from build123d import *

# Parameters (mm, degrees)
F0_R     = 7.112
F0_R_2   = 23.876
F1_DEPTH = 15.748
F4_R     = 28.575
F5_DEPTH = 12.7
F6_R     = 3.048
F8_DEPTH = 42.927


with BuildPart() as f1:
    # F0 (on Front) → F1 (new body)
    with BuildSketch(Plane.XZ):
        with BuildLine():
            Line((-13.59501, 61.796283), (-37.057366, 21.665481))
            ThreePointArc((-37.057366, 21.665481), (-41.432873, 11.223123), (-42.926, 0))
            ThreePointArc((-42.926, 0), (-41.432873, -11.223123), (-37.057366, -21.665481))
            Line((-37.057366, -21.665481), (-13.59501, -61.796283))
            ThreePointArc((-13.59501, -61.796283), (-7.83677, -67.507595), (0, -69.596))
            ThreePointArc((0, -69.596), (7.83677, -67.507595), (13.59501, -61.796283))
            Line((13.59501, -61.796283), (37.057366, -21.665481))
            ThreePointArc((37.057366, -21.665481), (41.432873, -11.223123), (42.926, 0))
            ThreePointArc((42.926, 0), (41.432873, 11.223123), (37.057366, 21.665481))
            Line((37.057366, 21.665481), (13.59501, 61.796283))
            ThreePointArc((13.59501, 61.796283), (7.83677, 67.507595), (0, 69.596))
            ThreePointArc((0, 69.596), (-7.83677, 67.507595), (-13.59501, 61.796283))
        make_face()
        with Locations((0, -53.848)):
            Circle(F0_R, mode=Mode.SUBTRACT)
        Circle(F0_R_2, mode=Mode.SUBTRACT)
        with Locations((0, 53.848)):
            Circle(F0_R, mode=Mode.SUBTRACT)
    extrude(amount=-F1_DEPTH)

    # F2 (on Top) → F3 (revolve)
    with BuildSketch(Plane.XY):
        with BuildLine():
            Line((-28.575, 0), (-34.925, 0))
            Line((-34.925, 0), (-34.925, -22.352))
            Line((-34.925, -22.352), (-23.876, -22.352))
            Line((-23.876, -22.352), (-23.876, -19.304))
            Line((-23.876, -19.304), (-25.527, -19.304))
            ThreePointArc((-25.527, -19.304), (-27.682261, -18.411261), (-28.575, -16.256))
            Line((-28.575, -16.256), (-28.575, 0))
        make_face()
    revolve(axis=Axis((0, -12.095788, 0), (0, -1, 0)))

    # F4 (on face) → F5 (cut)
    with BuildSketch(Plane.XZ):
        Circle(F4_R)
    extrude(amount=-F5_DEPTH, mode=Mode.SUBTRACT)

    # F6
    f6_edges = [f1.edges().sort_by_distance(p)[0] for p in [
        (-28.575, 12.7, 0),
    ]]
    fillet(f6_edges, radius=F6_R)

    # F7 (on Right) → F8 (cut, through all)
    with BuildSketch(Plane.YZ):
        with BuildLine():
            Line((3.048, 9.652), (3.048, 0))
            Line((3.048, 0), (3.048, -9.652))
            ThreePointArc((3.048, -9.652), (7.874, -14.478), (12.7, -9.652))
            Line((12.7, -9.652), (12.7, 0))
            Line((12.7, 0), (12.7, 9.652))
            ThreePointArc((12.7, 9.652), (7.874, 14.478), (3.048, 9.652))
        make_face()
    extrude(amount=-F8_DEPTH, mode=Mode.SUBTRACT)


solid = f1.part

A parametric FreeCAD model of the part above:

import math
import FreeCAD as App
import Part
import Sketcher
Q = App.Units.Quantity


def edges_at(feature, points):
    """Names of the edges that pass closest to the given points."""
    edges = feature.Shape.Edges
    near = lambda p: min(range(len(edges)), key=lambda i: edges[i].distToShape(Part.Vertex(*p))[0])
    return sorted({f"Edge{near(p) + 1}" for p in points})

doc = App.newDocument("Part")
body = doc.addObject("PartDesign::Body", "Body")

sketch1 = body.newObject("Sketcher::SketchObject", "Sketch")
sketch1.AttachmentSupport = (doc.getObject("XZ_Plane"), [""])
sketch1.MapMode = "FlatFace"
sketch1.addGeometry(Part.LineSegment(App.Vector(-14, 62, 0), App.Vector(-37, 22, 0)), False)
sketch1.addGeometry(Part.ArcOfCircle(Part.Circle(App.Vector(0, 0, 0), App.Vector(0, 0, 1), 43), math.radians(150), math.radians(180)), False)
sketch1.addGeometry(Part.ArcOfCircle(Part.Circle(App.Vector(0, 0, 0), App.Vector(0, 0, 1), 43), math.radians(-180), math.radians(-150)), False)
sketch1.addGeometry(Part.LineSegment(App.Vector(-37, -22, 0), App.Vector(-14, -62, 0)), False)
sketch1.addGeometry(Part.ArcOfCircle(Part.Circle(App.Vector(0, -54, 0), App.Vector(0, 0, 1), 16), math.radians(-150), math.radians(-90)), False)
sketch1.addGeometry(Part.ArcOfCircle(Part.Circle(App.Vector(0, -54, 0), App.Vector(0, 0, 1), 16), math.radians(-90), math.radians(-30)), False)
sketch1.addGeometry(Part.LineSegment(App.Vector(14, -62, 0), App.Vector(37, -22, 0)), False)
sketch1.addGeometry(Part.ArcOfCircle(Part.Circle(App.Vector(0, 0, 0), App.Vector(0, 0, 1), 43), math.radians(-30), math.radians(0)), False)
sketch1.addGeometry(Part.ArcOfCircle(Part.Circle(App.Vector(0, 0, 0), App.Vector(0, 0, 1), 43), math.radians(0), math.radians(30)), False)
sketch1.addGeometry(Part.LineSegment(App.Vector(37, 22, 0), App.Vector(14, 62, 0)), False)
sketch1.addGeometry(Part.ArcOfCircle(Part.Circle(App.Vector(0, 54, 0), App.Vector(0, 0, 1), 16), math.radians(30), math.radians(90)), False)
sketch1.addGeometry(Part.ArcOfCircle(Part.Circle(App.Vector(0, 54, 0), App.Vector(0, 0, 1), 16), math.radians(90), math.radians(150)), False)
sketch1.addGeometry(Part.Circle(App.Vector(0, -54, 0), App.Vector(0, 0, 1), 7), False)
sketch1.addGeometry(Part.Circle(App.Vector(0, 0, 0), App.Vector(0, 0, 1), 24), False)
sketch1.addGeometry(Part.Circle(App.Vector(0, 54, 0), App.Vector(0, 0, 1), 7), False)
sketch1.addConstraint(Sketcher.Constraint("Tangent", 0, 2, 1, 1))
sketch1.addConstraint(Sketcher.Constraint("Tangent", 1, 2, 2, 1))
sketch1.addConstraint(Sketcher.Constraint("Tangent", 2, 2, 3, 1))
sketch1.addConstraint(Sketcher.Constraint("Tangent", 3, 2, 4, 1))
sketch1.addConstraint(Sketcher.Constraint("Tangent", 4, 2, 5, 1))
sketch1.addConstraint(Sketcher.Constraint("Tangent", 5, 2, 6, 1))
sketch1.addConstraint(Sketcher.Constraint("Tangent", 6, 2, 7, 1))
sketch1.addConstraint(Sketcher.Constraint("Tangent", 7, 2, 8, 1))
sketch1.addConstraint(Sketcher.Constraint("Tangent", 8, 2, 9, 1))
sketch1.addConstraint(Sketcher.Constraint("Tangent", 9, 2, 10, 1))
sketch1.addConstraint(Sketcher.Constraint("Tangent", 10, 2, 11, 1))
sketch1.addConstraint(Sketcher.Constraint("Tangent", 11, 2, 0, 1))
sketch1.addConstraint(Sketcher.Constraint("Coincident", 1, 3, -1, 1))
sketch1.addConstraint(Sketcher.Constraint("Coincident", 7, 3, -1, 1))
sketch1.addConstraint(Sketcher.Constraint("Coincident", 13, 3, -1, 1))
sketch1.addConstraint(Sketcher.Constraint("Coincident", 12, 3, 4, 3))
sketch1.addConstraint(Sketcher.Constraint("Coincident", 14, 3, 10, 3))
sketch1.addConstraint(Sketcher.Constraint("Equal", 1, 2))
sketch1.addConstraint(Sketcher.Constraint("Equal", 4, 5))
sketch1.addConstraint(Sketcher.Constraint("Equal", 2, 7))
sketch1.addConstraint(Sketcher.Constraint("Equal", 7, 8))
sketch1.addConstraint(Sketcher.Constraint("Equal", 5, 10))
sketch1.addConstraint(Sketcher.Constraint("Equal", 10, 11))
sketch1.addConstraint(Sketcher.Constraint("Equal", 12, 14))
sketch1.addConstraint(Sketcher.Constraint("Symmetric", 4, 3, 10, 3, -1, 1))
sketch1.addConstraint(Sketcher.Constraint("PointOnObject", 4, 3, -2))
sketch1.addConstraint(Sketcher.Constraint("PointOnObject", 1, 2, -1))
sketch1.addConstraint(Sketcher.Constraint("PointOnObject", 4, 2, -2))
sketch1.addConstraint(Sketcher.Constraint("PointOnObject", 7, 2, -1))
sketch1.addConstraint(Sketcher.Constraint("PointOnObject", 10, 2, -2))
sketch1.addConstraint(Sketcher.Constraint("Diameter", 12, Q("0.56 in")))
sketch1.addConstraint(Sketcher.Constraint("Diameter", 13, Q("1.88 in")))
sketch1.addConstraint(Sketcher.Constraint("Radius", 1, Q("1.69 in")))
sketch1.addConstraint(Sketcher.Constraint("Radius", 4, Q("0.62 in")))
sketch1.addConstraint(Sketcher.Constraint("DistanceY", 4, 3, -1, 1, Q("2.12 in")))
pad1 = body.newObject("PartDesign::Pad", "Pad")
pad1.Profile = sketch1
pad1.Length = Q("0.62 in")
pad1.Reversed = True

sketch2 = body.newObject("Sketcher::SketchObject", "Sketch001")
sketch2.AttachmentSupport = (doc.getObject("XY_Plane"), [""])
sketch2.MapMode = "FlatFace"
sketch2.addGeometry(Part.LineSegment(App.Vector(-28.6, 0, 0), App.Vector(-34.9, 0, 0)), False)
sketch2.addGeometry(Part.LineSegment(App.Vector(-34.9, 0, 0), App.Vector(-34.9, -22.4, 0)), False)
sketch2.addGeometry(Part.LineSegment(App.Vector(-34.9, -22.4, 0), App.Vector(-23.9, -22.4, 0)), False)
sketch2.addGeometry(Part.LineSegment(App.Vector(-23.9, -22.4, 0), App.Vector(-23.9, -19.3, 0)), False)
sketch2.addGeometry(Part.LineSegment(App.Vector(-23.9, -19.3, 0), App.Vector(-25.5, -19.3, 0)), False)
sketch2.addGeometry(Part.ArcOfCircle(Part.Circle(App.Vector(-25.5, -16.3, 0), App.Vector(0, 0, 1), 3), math.radians(-180), math.radians(-90)), False)
sketch2.addGeometry(Part.LineSegment(App.Vector(-28.6, -16.3, 0), App.Vector(-28.6, 0, 0)), False)
sketch2.addConstraint(Sketcher.Constraint("Coincident", 0, 2, 1, 1))
sketch2.addConstraint(Sketcher.Constraint("Coincident", 1, 2, 2, 1))
sketch2.addConstraint(Sketcher.Constraint("Coincident", 2, 2, 3, 1))
sketch2.addConstraint(Sketcher.Constraint("Coincident", 3, 2, 4, 1))
sketch2.addConstraint(Sketcher.Constraint("Tangent", 4, 2, 5, 2))
sketch2.addConstraint(Sketcher.Constraint("Tangent", 5, 1, 6, 1))
sketch2.addConstraint(Sketcher.Constraint("Coincident", 6, 2, 0, 1))
sketch2.addConstraint(Sketcher.Constraint("Horizontal", 0))
sketch2.addConstraint(Sketcher.Constraint("Vertical", 1))
sketch2.addConstraint(Sketcher.Constraint("Horizontal", 2))
sketch2.addConstraint(Sketcher.Constraint("Vertical", 3))
sketch2.addConstraint(Sketcher.Constraint("Horizontal", 4))
sketch2.addConstraint(Sketcher.Constraint("Vertical", 6))
sketch2.addConstraint(Sketcher.Constraint("PointOnObject", 0, 2, -1))
sketch2.addConstraint(Sketcher.Constraint("Radius", 5, Q("0.1200001 in")))
sketch2.addConstraint(Sketcher.Constraint("DistanceX", 0, 2, 0, 1, Q("0.25 in")))
sketch2.addConstraint(Sketcher.Constraint("DistanceY", 1, 2, 1, 1, Q("0.88 in")))
sketch2.addConstraint(Sketcher.Constraint("DistanceY", 3, 1, 3, 2, Q("0.12 in")))
sketch2.addConstraint(Sketcher.Constraint("DistanceX", 2, 1, 2, 2, Q("0.435 in")))
sketch2.addConstraint(Sketcher.Constraint("DistanceX", 2, 2, -1, 1, Q("0.94 in")))
revolution = body.newObject("PartDesign::Revolution", "Revolution")
revolution.Profile = sketch2
revolution.ReferenceAxis = (sketch2, ["V_Axis"])
revolution.Angle = 360

sketch3 = body.newObject("Sketcher::SketchObject", "Sketch002")
sketch3.AttachmentSupport = (doc.getObject("XZ_Plane"), [""])
sketch3.MapMode = "FlatFace"
sketch3.addGeometry(Part.Circle(App.Vector(0, 0, 0), App.Vector(0, 0, 1), 29), False)
sketch3.addConstraint(Sketcher.Constraint("Coincident", 0, 3, -1, 1))
sketch3.addConstraint(Sketcher.Constraint("Diameter", 0, Q("2.25 in")))
pocket1 = body.newObject("PartDesign::Pocket", "Pocket")
pocket1.Profile = sketch3
pocket1.Length = Q("0.5 in")
doc.recompute()

fillet = body.newObject("PartDesign::Fillet", "Fillet")
fillet.Base = (pocket1, edges_at(pocket1, [(-28.575, 12.7, 0)]))
fillet.Radius = Q("0.12 in")

sketch4 = body.newObject("Sketcher::SketchObject", "Sketch003")
sketch4.AttachmentSupport = (doc.getObject("YZ_Plane"), [""])
sketch4.MapMode = "FlatFace"
sketch4.addGeometry(Part.LineSegment(App.Vector(3, 9.7, 0), App.Vector(3, -9.7, 0)), False)
sketch4.addGeometry(Part.ArcOfCircle(Part.Circle(App.Vector(7.9, -9.7, 0), App.Vector(0, 0, 1), 4.8), math.radians(180), math.radians(360)), False)
sketch4.addGeometry(Part.LineSegment(App.Vector(12.7, -9.7, 0), App.Vector(12.7, 9.7, 0)), False)
sketch4.addGeometry(Part.ArcOfCircle(Part.Circle(App.Vector(7.9, 9.7, 0), App.Vector(0, 0, 1), 4.8), math.radians(0), math.radians(180)), False)
sketch4.addConstraint(Sketcher.Constraint("Tangent", 0, 2, 1, 1))
sketch4.addConstraint(Sketcher.Constraint("Tangent", 1, 2, 2, 1))
sketch4.addConstraint(Sketcher.Constraint("Tangent", 2, 2, 3, 1))
sketch4.addConstraint(Sketcher.Constraint("Tangent", 3, 2, 0, 1))
sketch4.addConstraint(Sketcher.Constraint("Vertical", 0))
sketch4.addConstraint(Sketcher.Constraint("Vertical", 2))
sketch4.addConstraint(Sketcher.Constraint("Radius", 1, Q("0.19 in")))
sketch4.addConstraint(Sketcher.Constraint("DistanceY", 0, 2, 0, 1, Q("0.76 in")))
sketch4.addConstraint(Sketcher.Constraint("DistanceX", -1, 1, 1, 2, Q("0.5 in")))
sketch4.addConstraint(Sketcher.Constraint("DistanceY", 1, 3, -1, 1, Q("0.38 in")))
pocket2 = body.newObject("PartDesign::Pocket", "Pocket001")
pocket2.Profile = sketch4
pocket2.Type = "ThroughAll"

doc.recompute()
